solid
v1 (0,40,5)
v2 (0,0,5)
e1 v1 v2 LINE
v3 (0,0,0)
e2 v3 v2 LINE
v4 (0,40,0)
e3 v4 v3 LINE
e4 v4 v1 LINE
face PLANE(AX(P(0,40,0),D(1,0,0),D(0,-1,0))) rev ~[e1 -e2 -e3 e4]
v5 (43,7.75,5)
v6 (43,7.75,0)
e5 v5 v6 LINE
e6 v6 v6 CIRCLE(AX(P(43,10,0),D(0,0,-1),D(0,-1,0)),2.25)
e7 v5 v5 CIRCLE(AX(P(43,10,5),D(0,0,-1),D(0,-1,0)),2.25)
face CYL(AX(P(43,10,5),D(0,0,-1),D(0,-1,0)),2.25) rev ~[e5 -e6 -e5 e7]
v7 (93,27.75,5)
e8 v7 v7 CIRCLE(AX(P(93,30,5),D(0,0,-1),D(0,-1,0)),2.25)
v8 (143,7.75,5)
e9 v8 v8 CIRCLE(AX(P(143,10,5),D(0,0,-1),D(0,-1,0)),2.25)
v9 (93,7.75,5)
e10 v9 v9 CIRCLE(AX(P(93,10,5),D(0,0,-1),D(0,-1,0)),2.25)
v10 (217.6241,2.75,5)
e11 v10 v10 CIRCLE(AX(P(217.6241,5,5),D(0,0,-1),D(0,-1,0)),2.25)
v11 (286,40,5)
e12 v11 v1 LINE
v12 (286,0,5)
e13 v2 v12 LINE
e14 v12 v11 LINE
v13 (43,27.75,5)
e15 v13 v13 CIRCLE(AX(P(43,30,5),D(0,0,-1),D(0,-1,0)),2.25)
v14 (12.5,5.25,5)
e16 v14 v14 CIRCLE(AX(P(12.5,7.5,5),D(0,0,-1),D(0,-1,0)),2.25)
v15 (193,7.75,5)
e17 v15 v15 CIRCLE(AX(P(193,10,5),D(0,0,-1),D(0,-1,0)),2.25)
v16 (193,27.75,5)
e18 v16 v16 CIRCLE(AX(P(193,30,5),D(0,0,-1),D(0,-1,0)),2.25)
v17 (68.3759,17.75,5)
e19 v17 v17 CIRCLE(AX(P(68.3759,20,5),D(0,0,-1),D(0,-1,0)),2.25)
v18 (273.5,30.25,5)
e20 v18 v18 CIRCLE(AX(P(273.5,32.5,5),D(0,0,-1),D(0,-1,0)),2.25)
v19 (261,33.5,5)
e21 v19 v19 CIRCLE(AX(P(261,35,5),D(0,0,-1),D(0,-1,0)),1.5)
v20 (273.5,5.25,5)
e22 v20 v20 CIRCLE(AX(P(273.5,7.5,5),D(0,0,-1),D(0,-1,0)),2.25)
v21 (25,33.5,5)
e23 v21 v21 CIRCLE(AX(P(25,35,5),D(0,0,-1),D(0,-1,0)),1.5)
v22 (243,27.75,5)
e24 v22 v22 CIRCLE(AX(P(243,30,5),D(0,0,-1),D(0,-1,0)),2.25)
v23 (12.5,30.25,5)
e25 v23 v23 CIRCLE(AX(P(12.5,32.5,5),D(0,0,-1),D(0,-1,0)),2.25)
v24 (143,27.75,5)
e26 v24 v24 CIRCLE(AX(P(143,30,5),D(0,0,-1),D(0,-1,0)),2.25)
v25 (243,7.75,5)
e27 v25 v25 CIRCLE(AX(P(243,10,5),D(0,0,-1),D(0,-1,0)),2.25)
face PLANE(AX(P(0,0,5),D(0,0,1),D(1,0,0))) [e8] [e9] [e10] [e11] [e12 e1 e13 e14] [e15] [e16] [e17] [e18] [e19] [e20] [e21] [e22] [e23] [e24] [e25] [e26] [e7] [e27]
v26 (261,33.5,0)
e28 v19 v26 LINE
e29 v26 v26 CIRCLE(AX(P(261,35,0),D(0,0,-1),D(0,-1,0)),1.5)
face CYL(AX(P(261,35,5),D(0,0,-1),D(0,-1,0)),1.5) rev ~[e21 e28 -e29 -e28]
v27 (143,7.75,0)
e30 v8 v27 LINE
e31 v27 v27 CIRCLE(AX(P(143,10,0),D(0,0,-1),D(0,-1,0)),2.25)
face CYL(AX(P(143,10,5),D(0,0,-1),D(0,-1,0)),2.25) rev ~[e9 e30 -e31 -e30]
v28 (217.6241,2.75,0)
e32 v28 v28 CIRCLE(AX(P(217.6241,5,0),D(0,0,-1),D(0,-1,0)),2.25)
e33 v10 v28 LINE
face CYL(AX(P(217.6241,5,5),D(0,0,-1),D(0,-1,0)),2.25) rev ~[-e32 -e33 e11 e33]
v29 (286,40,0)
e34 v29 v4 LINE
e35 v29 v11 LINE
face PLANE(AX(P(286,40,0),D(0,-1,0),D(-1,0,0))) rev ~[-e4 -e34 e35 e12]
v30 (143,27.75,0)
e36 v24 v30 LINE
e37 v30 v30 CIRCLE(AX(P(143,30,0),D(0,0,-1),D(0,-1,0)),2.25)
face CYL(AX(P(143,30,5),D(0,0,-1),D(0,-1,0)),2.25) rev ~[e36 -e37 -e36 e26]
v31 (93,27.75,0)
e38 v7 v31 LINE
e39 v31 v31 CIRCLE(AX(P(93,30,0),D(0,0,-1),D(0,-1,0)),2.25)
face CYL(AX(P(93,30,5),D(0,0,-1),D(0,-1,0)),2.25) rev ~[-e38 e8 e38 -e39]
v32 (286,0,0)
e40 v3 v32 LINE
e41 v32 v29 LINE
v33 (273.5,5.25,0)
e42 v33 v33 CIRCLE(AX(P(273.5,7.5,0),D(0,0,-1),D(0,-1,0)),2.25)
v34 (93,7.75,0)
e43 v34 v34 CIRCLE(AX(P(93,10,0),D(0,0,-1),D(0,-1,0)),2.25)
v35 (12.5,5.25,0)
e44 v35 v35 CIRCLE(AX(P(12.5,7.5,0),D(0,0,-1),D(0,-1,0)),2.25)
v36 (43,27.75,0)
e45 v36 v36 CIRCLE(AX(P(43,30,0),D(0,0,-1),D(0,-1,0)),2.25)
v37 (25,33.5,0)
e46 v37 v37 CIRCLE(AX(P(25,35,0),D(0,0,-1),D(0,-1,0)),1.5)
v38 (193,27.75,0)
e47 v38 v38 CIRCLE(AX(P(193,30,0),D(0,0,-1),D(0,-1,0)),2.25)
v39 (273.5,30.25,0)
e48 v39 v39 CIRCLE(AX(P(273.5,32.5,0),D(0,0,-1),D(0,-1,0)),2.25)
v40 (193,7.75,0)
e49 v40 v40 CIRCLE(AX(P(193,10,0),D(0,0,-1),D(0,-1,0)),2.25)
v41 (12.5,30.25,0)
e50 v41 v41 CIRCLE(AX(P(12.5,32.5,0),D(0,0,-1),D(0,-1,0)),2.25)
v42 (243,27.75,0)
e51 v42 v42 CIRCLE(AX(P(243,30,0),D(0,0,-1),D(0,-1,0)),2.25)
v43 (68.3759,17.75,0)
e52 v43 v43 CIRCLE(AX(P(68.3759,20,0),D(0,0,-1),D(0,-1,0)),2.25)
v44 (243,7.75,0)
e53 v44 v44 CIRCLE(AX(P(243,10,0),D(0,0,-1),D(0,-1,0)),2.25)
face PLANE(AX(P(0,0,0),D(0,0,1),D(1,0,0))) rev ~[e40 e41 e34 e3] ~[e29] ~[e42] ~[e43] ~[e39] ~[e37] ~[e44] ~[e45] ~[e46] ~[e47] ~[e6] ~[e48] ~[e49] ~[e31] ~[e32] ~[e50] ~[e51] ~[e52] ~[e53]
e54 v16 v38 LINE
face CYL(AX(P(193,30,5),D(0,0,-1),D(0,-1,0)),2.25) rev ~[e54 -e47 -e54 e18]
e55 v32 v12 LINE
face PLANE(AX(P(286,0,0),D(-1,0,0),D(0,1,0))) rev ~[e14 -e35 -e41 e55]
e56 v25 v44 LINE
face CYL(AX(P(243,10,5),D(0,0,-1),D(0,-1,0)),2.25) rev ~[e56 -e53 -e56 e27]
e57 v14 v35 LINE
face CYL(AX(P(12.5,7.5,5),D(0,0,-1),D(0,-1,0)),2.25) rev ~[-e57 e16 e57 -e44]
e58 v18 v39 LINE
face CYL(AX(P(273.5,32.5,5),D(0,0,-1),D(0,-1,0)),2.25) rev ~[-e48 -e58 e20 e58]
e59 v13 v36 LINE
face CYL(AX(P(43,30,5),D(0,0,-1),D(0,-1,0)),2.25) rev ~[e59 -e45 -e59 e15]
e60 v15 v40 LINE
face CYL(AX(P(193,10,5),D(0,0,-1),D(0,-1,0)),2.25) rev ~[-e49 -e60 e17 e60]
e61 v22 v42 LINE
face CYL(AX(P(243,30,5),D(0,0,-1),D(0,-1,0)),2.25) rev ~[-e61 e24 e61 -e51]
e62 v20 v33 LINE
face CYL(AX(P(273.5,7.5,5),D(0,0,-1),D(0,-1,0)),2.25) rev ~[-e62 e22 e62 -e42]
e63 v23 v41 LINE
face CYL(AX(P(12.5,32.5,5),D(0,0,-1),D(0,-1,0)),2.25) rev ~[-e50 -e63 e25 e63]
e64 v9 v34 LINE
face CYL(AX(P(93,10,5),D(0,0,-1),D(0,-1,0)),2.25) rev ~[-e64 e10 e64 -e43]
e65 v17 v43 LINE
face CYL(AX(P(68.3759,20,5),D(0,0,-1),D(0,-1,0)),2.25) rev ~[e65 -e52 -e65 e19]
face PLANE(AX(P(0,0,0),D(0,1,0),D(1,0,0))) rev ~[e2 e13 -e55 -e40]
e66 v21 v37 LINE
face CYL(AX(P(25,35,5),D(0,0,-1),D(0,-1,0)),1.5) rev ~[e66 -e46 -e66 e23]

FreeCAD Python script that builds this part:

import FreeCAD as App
import Part
import Sketcher

doc = App.newDocument("Part")
body = doc.addObject("PartDesign::Body", "Body")

sketch1 = body.newObject("Sketcher::SketchObject", "Sketch")
sketch1.AttachmentSupport = (doc.getObject("XY_Plane"), [""])
sketch1.MapMode = "FlatFace"
sketch1.addGeometry(Part.LineSegment(App.Vector(0, 40, 0), App.Vector(0, 0, 0)), False)
sketch1.addGeometry(Part.LineSegment(App.Vector(0, 0, 0), App.Vector(286, 0, 0)), False)
sketch1.addGeometry(Part.LineSegment(App.Vector(286, 0, 0), App.Vector(286, 40, 0)), False)
sketch1.addGeometry(Part.LineSegment(App.Vector(286, 40, 0), App.Vector(0, 40, 0)), False)
sketch1.addConstraint(Sketcher.Constraint("Coincident", 0, 2, 1, 1))
sketch1.addConstraint(Sketcher.Constraint("Coincident", 1, 2, 2, 1))
sketch1.addConstraint(Sketcher.Constraint("Coincident", 2, 2, 3, 1))
sketch1.addConstraint(Sketcher.Constraint("Coincident", 3, 2, 0, 1))
sketch1.addConstraint(Sketcher.Constraint("Vertical", 0))
sketch1.addConstraint(Sketcher.Constraint("Horizontal", 1))
sketch1.addConstraint(Sketcher.Constraint("Vertical", 2))
sketch1.addConstraint(Sketcher.Constraint("Horizontal", 3))
sketch1.addConstraint(Sketcher.Constraint("Coincident", 0, 2, -1, 1))
sketch1.addConstraint(Sketcher.Constraint("DistanceX", 1, 1, 1, 2, 286.0))
sketch1.addConstraint(Sketcher.Constraint("DistanceY", 0, 2, 0, 1, 40.0))
pad1 = body.newObject("PartDesign::Pad", "Pad")
pad1.Profile = sketch1
pad1.Length = 5

sketch2 = body.newObject("Sketcher::SketchObject", "Sketch001")
sketch2.AttachmentSupport = (doc.getObject("XY_Plane"), [""])
sketch2.MapMode = "FlatFace"
sketch2.AttachmentOffset = App.Placement(App.Vector(0, 0, 5), App.Rotation())
sketch2.addGeometry(Part.Circle(App.Vector(43, 30, 0), App.Vector(0, 0, 1), 2.2), False)
sketch2.addGeometry(Part.Circle(App.Vector(43, 10, 0), App.Vector(0, 0, 1), 2.2), False)
sketch2.addConstraint(Sketcher.Constraint("Equal", 0, 1))
sketch2.addConstraint(Sketcher.Constraint("Vertical", 0, 3, 1, 3))
sketch2.addConstraint(Sketcher.Constraint("Diameter", 0, 4.5))
sketch2.addConstraint(Sketcher.Constraint("DistanceX", -1, 1, 0, 3, 43.0))
sketch2.addConstraint(Sketcher.Constraint("DistanceY", -1, 1, 0, 3, 30.0))
sketch2.addConstraint(Sketcher.Constraint("DistanceY", -1, 1, 1, 3, 10.0))
doc.recompute()
hole = body.newObject("PartDesign::Hole", "Hole")
hole.Profile = sketch2
hole.ThreadType = "None"
hole.Diameter = 4.5
hole.DepthType = "ThroughAll"
doc.recompute()

linearpattern = body.newObject("PartDesign::LinearPattern", "LinearPattern")
linearpattern.Originals = [hole]
linearpattern.Direction = (doc.getObject("X_Axis"), [""])
linearpattern.Mode = "offset"
linearpattern.Offset = 50
linearpattern.Occurrences = 5
body.Tip = linearpattern

sketch3 = body.newObject("Sketcher::SketchObject", "Sketch002")
sketch3.AttachmentSupport = (doc.getObject("XY_Plane"), [""])
sketch3.MapMode = "FlatFace"
sketch3.AttachmentOffset = App.Placement(App.Vector(0, 0, 5), App.Rotation())
sketch3.addGeometry(Part.Circle(App.Vector(68.4, 20, 0), App.Vector(0, 0, 1), 2.2), False)
sketch3.addGeometry(Part.Circle(App.Vector(217.6, 5, 0), App.Vector(0, 0, 1), 2.2), False)
sketch3.addConstraint(Sketcher.Constraint("Equal", 0, 1))
sketch3.addConstraint(Sketcher.Constraint("Diameter", 0, 4.5))
sketch3.addConstraint(Sketcher.Constraint("DistanceY", -1, 1, 0, 3, 20.0))
sketch3.addConstraint(Sketcher.Constraint("DistanceY", -1, 1, 1, 3, 5.0))
sketch3.addConstraint(Sketcher.Constraint("DistanceX", -1, 1, 0, 3, 68.376))
sketch3.addConstraint(Sketcher.Constraint("DistanceX", -1, 1, 1, 3, 217.624))
doc.recompute()
hole2 = body.newObject("PartDesign::Hole", "Hole001")
hole2.Profile = sketch3
hole2.ThreadType = "None"
hole2.Diameter = 4.5
hole2.DepthType = "ThroughAll"

sketch4 = body.newObject("Sketcher::SketchObject", "Sketch003")
sketch4.AttachmentSupport = (doc.getObject("XY_Plane"), [""])
sketch4.MapMode = "FlatFace"
sketch4.AttachmentOffset = App.Placement(App.Vector(0, 0, 5), App.Rotation())
sketch4.addGeometry(Part.Circle(App.Vector(12.5, 32.5, 0), App.Vector(0, 0, 1), 2.2), False)
sketch4.addGeometry(Part.Circle(App.Vector(12.5, 7.5, 0), App.Vector(0, 0, 1), 2.2), False)
sketch4.addGeometry(Part.Circle(App.Vector(273.5, 32.5, 0), App.Vector(0, 0, 1), 2.2), False)
sketch4.addGeometry(Part.Circle(App.Vector(273.5, 7.5, 0), App.Vector(0, 0, 1), 2.2), False)
sketch4.addConstraint(Sketcher.Constraint("Equal", 0, 1))
sketch4.addConstraint(Sketcher.Constraint("Equal", 1, 2))
sketch4.addConstraint(Sketcher.Constraint("Equal", 2, 3))
sketch4.addConstraint(Sketcher.Constraint("Horizontal", 0, 3, 2, 3))
sketch4.addConstraint(Sketcher.Constraint("Horizontal", 1, 3, 3, 3))
sketch4.addConstraint(Sketcher.Constraint("Vertical", 0, 3, 1, 3))
sketch4.addConstraint(Sketcher.Constraint("Vertical", 2, 3, 3, 3))
sketch4.addConstraint(Sketcher.Constraint("Diameter", 0, 4.5))
sketch4.addConstraint(Sketcher.Constraint("DistanceY", 1, 3, 0, 3, 25.0))
sketch4.addConstraint(Sketcher.Constraint("DistanceX", 0, 3, 2, 3, 261.0))
sketch4.addConstraint(Sketcher.Constraint("DistanceX", -1, 1, 0, 3, 12.5))
sketch4.addConstraint(Sketcher.Constraint("DistanceY", -1, 1, 0, 3, 32.5))
doc.recompute()
hole3 = body.newObject("PartDesign::Hole", "Hole002")
hole3.Profile = sketch4
hole3.ThreadType = "None"
hole3.Diameter = 4.5
hole3.DepthType = "ThroughAll"

sketch5 = body.newObject("Sketcher::SketchObject", "Sketch004")
sketch5.AttachmentSupport = (doc.getObject("XY_Plane"), [""])
sketch5.MapMode = "FlatFace"
sketch5.AttachmentOffset = App.Placement(App.Vector(0, 0, 5), App.Rotation())
sketch5.addGeometry(Part.Circle(App.Vector(25, 35, 0), App.Vector(0, 0, 1), 1.5), False)
sketch5.addGeometry(Part.Circle(App.Vector(261, 35, 0), App.Vector(0, 0, 1), 1.5), False)
sketch5.addConstraint(Sketcher.Constraint("Equal", 0, 1))
sketch5.addConstraint(Sketcher.Constraint("Horizontal", 0, 3, 1, 3))
sketch5.addConstraint(Sketcher.Constraint("Diameter", 0, 3.0))
sketch5.addConstraint(Sketcher.Constraint("DistanceX", -1, 1, 0, 3, 25.0))
sketch5.addConstraint(Sketcher.Constraint("DistanceY", -1, 1, 0, 3, 35.0))
sketch5.addConstraint(Sketcher.Constraint("DistanceX", -1, 1, 1, 3, 261.0))
doc.recompute()
hole4 = body.newObject("PartDesign::Hole", "Hole003")
hole4.Profile = sketch5
hole4.ThreadType = "None"
hole4.Diameter = 3
hole4.DepthType = "ThroughAll"

doc.recompute()
